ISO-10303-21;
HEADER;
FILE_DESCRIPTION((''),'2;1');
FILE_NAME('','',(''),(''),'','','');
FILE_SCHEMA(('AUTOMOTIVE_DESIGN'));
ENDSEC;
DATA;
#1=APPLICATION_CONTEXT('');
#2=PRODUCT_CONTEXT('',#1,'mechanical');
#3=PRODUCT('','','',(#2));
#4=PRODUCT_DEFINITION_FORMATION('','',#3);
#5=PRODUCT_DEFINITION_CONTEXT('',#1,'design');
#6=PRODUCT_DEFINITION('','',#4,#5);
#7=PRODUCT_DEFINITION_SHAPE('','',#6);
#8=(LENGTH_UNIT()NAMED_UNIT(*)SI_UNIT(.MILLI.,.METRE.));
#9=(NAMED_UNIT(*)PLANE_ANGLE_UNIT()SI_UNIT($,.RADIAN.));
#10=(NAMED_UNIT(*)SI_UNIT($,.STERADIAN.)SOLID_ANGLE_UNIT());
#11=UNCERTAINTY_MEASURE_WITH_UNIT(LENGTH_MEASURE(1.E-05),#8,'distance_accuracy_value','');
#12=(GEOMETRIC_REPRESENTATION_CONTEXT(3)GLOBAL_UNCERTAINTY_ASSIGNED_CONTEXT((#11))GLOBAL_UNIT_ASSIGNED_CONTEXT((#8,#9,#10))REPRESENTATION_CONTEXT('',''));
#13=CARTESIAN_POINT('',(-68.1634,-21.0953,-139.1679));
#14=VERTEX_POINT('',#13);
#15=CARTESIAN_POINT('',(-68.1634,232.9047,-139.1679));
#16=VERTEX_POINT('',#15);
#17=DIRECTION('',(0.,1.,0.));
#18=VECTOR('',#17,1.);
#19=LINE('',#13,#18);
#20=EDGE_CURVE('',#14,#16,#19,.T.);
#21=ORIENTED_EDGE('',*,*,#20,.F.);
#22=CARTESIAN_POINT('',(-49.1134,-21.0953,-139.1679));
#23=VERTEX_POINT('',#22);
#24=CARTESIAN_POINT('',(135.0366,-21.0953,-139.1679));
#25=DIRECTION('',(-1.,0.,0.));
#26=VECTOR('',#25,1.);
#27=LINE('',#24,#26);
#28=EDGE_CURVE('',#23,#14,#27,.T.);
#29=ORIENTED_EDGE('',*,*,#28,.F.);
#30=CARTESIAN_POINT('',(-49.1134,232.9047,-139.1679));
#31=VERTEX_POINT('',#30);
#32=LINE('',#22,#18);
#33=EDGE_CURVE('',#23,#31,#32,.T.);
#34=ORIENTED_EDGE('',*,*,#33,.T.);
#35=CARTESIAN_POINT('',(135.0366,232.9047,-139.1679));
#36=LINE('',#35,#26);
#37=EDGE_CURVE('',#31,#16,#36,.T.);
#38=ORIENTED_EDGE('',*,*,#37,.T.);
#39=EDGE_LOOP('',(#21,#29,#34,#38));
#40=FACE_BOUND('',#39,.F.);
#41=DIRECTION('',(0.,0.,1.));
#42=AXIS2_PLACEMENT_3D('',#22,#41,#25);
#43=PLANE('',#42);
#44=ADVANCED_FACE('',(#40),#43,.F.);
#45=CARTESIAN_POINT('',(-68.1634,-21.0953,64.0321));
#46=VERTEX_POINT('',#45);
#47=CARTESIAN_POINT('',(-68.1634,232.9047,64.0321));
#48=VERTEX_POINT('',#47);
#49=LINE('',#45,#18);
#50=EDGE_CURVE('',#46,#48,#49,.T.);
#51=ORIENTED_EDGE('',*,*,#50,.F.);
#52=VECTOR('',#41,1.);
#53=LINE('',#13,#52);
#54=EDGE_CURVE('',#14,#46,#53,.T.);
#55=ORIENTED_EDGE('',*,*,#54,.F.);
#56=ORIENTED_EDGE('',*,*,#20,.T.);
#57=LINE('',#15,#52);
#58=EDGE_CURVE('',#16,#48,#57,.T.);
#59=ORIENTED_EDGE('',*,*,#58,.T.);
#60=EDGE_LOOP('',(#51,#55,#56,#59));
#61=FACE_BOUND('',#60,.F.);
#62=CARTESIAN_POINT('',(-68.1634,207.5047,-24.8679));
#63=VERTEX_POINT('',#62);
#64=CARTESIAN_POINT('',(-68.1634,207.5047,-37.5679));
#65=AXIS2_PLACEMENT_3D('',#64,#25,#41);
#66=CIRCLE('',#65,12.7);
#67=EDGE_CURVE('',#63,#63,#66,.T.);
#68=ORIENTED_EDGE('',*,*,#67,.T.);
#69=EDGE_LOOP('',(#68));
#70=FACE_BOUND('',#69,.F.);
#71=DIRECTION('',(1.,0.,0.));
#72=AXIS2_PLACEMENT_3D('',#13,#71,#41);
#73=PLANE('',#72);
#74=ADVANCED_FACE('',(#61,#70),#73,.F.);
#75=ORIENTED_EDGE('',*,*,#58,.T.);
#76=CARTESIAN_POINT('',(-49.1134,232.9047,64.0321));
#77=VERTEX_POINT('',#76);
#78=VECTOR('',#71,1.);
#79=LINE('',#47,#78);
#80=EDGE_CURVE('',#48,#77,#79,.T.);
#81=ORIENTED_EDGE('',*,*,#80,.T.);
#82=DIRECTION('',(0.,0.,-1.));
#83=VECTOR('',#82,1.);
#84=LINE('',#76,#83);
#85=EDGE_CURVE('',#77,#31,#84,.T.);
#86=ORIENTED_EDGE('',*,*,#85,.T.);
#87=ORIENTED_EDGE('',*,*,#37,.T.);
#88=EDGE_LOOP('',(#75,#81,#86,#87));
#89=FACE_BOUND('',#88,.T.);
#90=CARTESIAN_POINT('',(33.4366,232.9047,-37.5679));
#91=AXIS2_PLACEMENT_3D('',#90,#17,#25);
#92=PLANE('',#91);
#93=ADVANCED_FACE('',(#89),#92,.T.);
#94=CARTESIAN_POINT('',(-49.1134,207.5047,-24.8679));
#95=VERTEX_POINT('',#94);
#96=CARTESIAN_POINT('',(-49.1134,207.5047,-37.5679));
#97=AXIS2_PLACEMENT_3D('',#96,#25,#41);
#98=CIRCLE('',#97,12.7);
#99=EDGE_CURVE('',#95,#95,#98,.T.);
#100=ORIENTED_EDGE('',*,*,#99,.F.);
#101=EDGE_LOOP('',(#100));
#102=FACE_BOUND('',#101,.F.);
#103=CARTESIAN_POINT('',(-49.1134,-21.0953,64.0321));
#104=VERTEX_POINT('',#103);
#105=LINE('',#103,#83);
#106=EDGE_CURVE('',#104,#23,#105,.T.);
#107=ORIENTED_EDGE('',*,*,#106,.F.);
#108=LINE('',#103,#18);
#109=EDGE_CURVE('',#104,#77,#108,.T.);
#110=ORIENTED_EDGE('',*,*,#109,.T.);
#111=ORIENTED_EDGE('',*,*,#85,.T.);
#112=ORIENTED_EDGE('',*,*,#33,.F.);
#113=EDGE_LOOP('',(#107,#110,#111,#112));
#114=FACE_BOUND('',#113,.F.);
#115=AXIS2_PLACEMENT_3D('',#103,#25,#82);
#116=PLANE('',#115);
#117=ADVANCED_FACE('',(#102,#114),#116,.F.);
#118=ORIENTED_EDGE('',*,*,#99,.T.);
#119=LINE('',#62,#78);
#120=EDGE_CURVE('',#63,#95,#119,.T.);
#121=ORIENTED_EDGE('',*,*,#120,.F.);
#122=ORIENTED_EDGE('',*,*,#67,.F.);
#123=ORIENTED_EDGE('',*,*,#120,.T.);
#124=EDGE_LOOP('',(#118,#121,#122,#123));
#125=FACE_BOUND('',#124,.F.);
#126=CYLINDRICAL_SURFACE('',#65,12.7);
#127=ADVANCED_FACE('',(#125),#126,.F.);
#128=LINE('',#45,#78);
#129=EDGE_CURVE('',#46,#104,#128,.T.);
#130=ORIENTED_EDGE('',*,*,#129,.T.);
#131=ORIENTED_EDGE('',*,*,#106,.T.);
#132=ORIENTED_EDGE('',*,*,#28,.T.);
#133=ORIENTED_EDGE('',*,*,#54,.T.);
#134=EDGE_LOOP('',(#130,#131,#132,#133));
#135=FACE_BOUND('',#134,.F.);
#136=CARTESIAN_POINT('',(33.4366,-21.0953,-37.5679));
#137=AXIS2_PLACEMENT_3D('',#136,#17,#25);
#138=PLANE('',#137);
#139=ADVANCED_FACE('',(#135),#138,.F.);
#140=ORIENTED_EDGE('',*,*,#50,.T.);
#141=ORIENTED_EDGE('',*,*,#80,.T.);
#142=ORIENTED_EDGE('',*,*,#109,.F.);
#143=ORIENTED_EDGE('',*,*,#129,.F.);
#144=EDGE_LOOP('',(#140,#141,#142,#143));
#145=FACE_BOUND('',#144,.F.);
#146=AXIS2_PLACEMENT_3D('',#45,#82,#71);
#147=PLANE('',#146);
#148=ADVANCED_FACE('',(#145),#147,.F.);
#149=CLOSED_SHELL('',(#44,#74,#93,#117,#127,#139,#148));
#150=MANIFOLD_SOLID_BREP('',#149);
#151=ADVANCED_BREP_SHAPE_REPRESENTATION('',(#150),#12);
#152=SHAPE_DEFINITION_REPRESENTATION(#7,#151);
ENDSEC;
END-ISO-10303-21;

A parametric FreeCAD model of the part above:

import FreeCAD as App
import Part
import Sketcher
from FreeCAD import Vector
Q = App.Units.Quantity

doc = App.newDocument("Part")
body = doc.addObject("PartDesign::Body", "Body")

sketch1 = body.newObject("Sketcher::SketchObject", "Sketch")
sketch1.AttachmentSupport = (doc.getObject("XZ_Plane"), [""])
sketch1.MapMode = "FlatFace"
sketch1.AttachmentOffset = App.Placement(Vector(0, 0, 21.0953), App.Rotation())
sketch1.addGeometry(Part.LineSegment(Vector(-49, -139, 0), Vector(-68, -139, 0)), False)
sketch1.addGeometry(Part.LineSegment(Vector(-68, -139, 0), Vector(-68, 64, 0)), False)
sketch1.addGeometry(Part.LineSegment(Vector(-68, 64, 0), Vector(-49, 64, 0)), False)
sketch1.addGeometry(Part.LineSegment(Vector(-49, 64, 0), Vector(-49, -139, 0)), False)
sketch1.addConstraint(Sketcher.Constraint("Coincident", 0, 2, 1, 1))
sketch1.addConstraint(Sketcher.Constraint("Coincident", 1, 2, 2, 1))
sketch1.addConstraint(Sketcher.Constraint("Coincident", 2, 2, 3, 1))
sketch1.addConstraint(Sketcher.Constraint("Coincident", 3, 2, 0, 1))
sketch1.addConstraint(Sketcher.Constraint("Horizontal", 0))
sketch1.addConstraint(Sketcher.Constraint("Vertical", 1))
sketch1.addConstraint(Sketcher.Constraint("Horizontal", 2))
sketch1.addConstraint(Sketcher.Constraint("Vertical", 3))
sketch1.addConstraint(Sketcher.Constraint("DistanceX", 0, 2, 0, 1, Q("0.75 in")))
sketch1.addConstraint(Sketcher.Constraint("DistanceY", 1, 1, 1, 2, Q("8 in")))
sketch1.addConstraint(Sketcher.Constraint("DistanceX", 0, 2, -1, 1, Q("2.6836 in")))
sketch1.addConstraint(Sketcher.Constraint("DistanceY", 0, 2, -1, 1, 139.168))
pad1 = body.newObject("PartDesign::Pad", "Pad")
pad1.Profile = sketch1
pad1.Length = Q("10 in")
pad1.Reversed = True

sketch2 = body.newObject("Sketcher::SketchObject", "Sketch001")
sketch2.AttachmentSupport = (doc.getObject("YZ_Plane"), [""])
sketch2.MapMode = "FlatFace"
sketch2.AttachmentOffset = App.Placement(Vector(0, 0, -2.6835984 * 25.4), App.Rotation())
sketch2.addGeometry(Part.Circle(Vector(208, -38, 0), Vector(0, 0, 1), 13), False)
sketch2.addConstraint(Sketcher.Constraint("Diameter", 0, Q("1 in")))
sketch2.addConstraint(Sketcher.Constraint("DistanceX", -1, 1, 0, 3, 207.5047))
sketch2.addConstraint(Sketcher.Constraint("DistanceY", 0, 3, -1, 1, 37.568))
pocket1 = body.newObject("PartDesign::Pocket", "Pocket")
pocket1.Profile = sketch2
pocket1.Type = "ThroughAll"
pocket1.Reversed = True

doc.recompute()
